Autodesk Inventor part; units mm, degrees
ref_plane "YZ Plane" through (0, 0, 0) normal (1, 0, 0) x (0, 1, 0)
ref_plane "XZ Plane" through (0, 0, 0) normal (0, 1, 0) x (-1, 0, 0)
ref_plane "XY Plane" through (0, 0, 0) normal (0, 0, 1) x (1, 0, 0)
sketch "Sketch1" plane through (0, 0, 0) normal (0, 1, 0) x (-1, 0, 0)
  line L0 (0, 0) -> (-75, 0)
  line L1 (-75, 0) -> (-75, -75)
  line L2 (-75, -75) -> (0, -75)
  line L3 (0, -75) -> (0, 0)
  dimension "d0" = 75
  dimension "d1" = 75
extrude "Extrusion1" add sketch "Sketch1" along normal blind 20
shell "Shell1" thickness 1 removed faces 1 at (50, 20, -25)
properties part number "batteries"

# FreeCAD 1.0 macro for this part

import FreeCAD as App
import Part
import Sketcher

V = App.Vector
Q = App.Units.Quantity


def faces_at(feature, points):
    """Names of the faces that lie closest to the given points."""
    faces = feature.Shape.Faces
    near = lambda p: min(range(len(faces)), key=lambda i: faces[i].distToShape(Part.Vertex(*p))[0])
    return sorted({f"Face{near(p) + 1}" for p in points})


def add_polygon(sketch, points):
    """Adds a closed chain of lines whose ends are joined by coincident constraints."""
    first, n = sketch.GeometryCount, len(points)
    for a, b in zip(points, points[1:] + points[:1]):
        sketch.addGeometry(Part.LineSegment(App.Vector(*a, 0), App.Vector(*b, 0)), False)
    for i in range(n):
        sketch.addConstraint(Sketcher.Constraint("Coincident", first + i, 2, first + (i + 1) % n, 1))

doc = App.newDocument("Part")
body = doc.addObject("PartDesign::Body", "Body")

sketch1 = body.newObject("Sketcher::SketchObject", "Sketch")
sketch1.AttachmentSupport = (doc.getObject("XZ_Plane"), [""])
sketch1.MapMode = "FlatFace"
add_polygon(sketch1, [(0, -75), (0, 0), (75, 0), (75, -75)])
sketch1.addConstraint([
    Sketcher.Constraint("Vertical", 0),
    Sketcher.Constraint("Horizontal", 1),
    Sketcher.Constraint("Vertical", 2),
    Sketcher.Constraint("Horizontal", 3),
    Sketcher.Constraint("Coincident", 0, 2, -1, 1),
    Sketcher.Constraint("Equal", 3, 0),
    Sketcher.Constraint("DistanceX", 1, 1, 1, 2, Q("75 mm")),
])
pad1 = body.newObject("PartDesign::Pad", "Pad")
pad1.Profile = sketch1
pad1.Length = 20
pad1.Reversed = True
doc.recompute()

thickness = body.newObject("PartDesign::Thickness", "Thickness")
thickness.Base = (pad1, faces_at(pad1, [(50, 20, -25)]))
thickness.Value = 1
thickness.Reversed = True
thickness.Join = "Intersection"

doc.recompute()
